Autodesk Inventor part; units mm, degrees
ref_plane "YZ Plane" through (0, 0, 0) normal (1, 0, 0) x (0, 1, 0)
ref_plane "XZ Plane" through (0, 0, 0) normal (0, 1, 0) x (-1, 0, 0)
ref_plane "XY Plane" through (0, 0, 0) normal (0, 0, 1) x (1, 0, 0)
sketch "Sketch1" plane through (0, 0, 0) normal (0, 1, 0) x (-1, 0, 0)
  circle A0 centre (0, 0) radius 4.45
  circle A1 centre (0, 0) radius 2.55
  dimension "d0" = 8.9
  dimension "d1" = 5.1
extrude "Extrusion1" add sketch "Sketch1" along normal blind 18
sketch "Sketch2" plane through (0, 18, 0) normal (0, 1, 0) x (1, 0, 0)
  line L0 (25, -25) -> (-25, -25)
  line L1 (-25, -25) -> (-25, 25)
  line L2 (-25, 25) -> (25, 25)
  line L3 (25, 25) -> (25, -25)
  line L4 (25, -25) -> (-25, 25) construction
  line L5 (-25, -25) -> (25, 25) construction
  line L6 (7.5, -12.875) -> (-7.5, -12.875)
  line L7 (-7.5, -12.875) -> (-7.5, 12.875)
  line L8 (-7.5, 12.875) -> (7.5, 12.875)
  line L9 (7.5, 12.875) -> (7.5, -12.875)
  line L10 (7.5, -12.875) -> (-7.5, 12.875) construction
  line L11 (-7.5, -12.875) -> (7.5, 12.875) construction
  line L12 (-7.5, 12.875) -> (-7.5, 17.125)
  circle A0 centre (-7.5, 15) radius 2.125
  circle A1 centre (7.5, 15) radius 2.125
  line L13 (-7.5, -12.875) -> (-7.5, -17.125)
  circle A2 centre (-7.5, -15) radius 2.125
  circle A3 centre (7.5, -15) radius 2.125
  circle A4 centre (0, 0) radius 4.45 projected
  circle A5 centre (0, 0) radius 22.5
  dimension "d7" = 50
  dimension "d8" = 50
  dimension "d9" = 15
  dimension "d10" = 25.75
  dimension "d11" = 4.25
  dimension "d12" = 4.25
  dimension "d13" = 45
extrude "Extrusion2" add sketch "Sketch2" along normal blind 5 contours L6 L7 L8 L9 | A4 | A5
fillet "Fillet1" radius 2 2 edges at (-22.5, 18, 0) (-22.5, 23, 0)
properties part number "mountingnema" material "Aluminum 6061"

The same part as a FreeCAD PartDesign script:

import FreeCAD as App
import Part
import Sketcher
Q = App.Units.Quantity


def edges_at(feature, points):
    """Names of the edges that pass closest to the given points."""
    edges = feature.Shape.Edges
    near = lambda p: min(range(len(edges)), key=lambda i: edges[i].distToShape(Part.Vertex(*p))[0])
    return sorted({f"Edge{near(p) + 1}" for p in points})

doc = App.newDocument("Part")
body = doc.addObject("PartDesign::Body", "Body")

# Sketch on XZ plane
sketch1 = body.newObject("Sketcher::SketchObject", "Sketch")
sketch1.AttachmentSupport = (doc.getObject("XZ_Plane"), [""])
sketch1.MapMode = "FlatFace"
sketch1.addGeometry([
    Part.Circle(App.Vector(0, 0, 0), App.Vector(0, 0, 1), 4.5),
    Part.Circle(App.Vector(0, 0, 0), App.Vector(0, 0, 1), 2.5),
], False)
sketch1.addConstraint([
    Sketcher.Constraint("Coincident", 0, 3, -1, 1),
    Sketcher.Constraint("Coincident", 1, 3, -1, 1),
    Sketcher.Constraint("Diameter", 0, Q("8.9 mm")),
    Sketcher.Constraint("Diameter", 1, Q("5.1 mm")),
])
pad1 = body.newObject("PartDesign::Pad", "Pad")
pad1.Profile = sketch1
pad1.Length = 18
pad1.Reversed = True

# Sketch on XZ plane
sketch2 = body.newObject("Sketcher::SketchObject", "Sketch001")
sketch2.AttachmentSupport = (doc.getObject("XZ_Plane"), [""])
sketch2.MapMode = "FlatFace"
sketch2.AttachmentOffset = App.Placement(App.Vector(0, 0, -18), App.Rotation())
sketch2.addGeometry([
    Part.Circle(App.Vector(0, 0, 0), App.Vector(0, 0, 1), 22.5),  # 0
    Part.Circle(App.Vector(-7.5, 15, 0), App.Vector(0, 0, 1), 2.1),  # 1
    Part.Circle(App.Vector(7.5, 15, 0), App.Vector(0, 0, 1), 2.1),  # 2
    Part.Circle(App.Vector(-7.5, -15, 0), App.Vector(0, 0, 1), 2.1),  # 3
    Part.Circle(App.Vector(7.5, -15, 0), App.Vector(0, 0, 1), 2.1),  # 4
], False)
sketch2.addConstraint([
    Sketcher.Constraint("Coincident", 0, 3, -1, 1),
    Sketcher.Constraint("Equal", 1, 2),
    Sketcher.Constraint("Equal", 2, 3),
    Sketcher.Constraint("Equal", 3, 4),
    Sketcher.Constraint("Symmetric", 2, 3, 3, 3, -1, 1),
    Sketcher.Constraint("Symmetric", 1, 3, 4, 3, -1, 1),
    Sketcher.Constraint("Symmetric", 1, 3, 2, 3, -2),
    Sketcher.Constraint("Diameter", 0, Q("45 mm")),
    Sketcher.Constraint("Diameter", 1, Q("4.25 mm")),
    Sketcher.Constraint("DistanceY", -1, 1, 1, 3, Q("15 mm")),
    Sketcher.Constraint("DistanceX", 1, 3, 2, 3, Q("15 mm")),
])
pad2 = body.newObject("PartDesign::Pad", "Pad001")
pad2.Profile = sketch2
pad2.Length = 5
pad2.Reversed = True
doc.recompute()

fillet = body.newObject("PartDesign::Fillet", "Fillet")
fillet.Base = (pad2, edges_at(pad2, [(-22.5, 18, 0), (-22.5, 23, 0)]))
fillet.Radius = 2

doc.recompute()
